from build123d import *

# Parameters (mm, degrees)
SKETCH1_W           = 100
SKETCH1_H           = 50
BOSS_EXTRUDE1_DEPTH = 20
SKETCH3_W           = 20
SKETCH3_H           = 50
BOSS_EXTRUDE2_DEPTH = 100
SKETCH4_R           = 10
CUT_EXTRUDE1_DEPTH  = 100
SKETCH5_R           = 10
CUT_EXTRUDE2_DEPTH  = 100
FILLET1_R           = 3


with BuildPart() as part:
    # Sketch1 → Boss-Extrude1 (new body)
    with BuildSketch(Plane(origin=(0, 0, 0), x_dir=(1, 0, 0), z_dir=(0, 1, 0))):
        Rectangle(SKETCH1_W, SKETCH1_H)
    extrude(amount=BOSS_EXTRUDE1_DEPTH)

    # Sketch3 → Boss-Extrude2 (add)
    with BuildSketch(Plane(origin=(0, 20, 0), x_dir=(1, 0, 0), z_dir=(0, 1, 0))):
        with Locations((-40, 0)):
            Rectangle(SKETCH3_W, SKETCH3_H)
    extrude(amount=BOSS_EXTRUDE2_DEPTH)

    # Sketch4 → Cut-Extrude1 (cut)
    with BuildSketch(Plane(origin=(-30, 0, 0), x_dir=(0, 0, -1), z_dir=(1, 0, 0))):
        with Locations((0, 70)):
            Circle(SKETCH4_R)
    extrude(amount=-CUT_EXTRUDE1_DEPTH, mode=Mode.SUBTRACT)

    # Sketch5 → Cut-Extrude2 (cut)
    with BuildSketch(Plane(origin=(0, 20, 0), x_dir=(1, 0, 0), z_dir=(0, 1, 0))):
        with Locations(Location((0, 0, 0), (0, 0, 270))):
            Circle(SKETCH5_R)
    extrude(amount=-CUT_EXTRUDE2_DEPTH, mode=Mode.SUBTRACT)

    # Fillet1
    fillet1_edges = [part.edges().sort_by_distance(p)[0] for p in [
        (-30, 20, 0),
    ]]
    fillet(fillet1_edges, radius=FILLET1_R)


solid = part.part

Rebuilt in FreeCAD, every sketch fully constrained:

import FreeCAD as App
import Part
import Sketcher

V = App.Vector
Q = App.Units.Quantity


def edges_at(feature, points):
    """Names of the edges that pass closest to the given points."""
    edges = feature.Shape.Edges
    near = lambda p: min(range(len(edges)), key=lambda i: edges[i].distToShape(Part.Vertex(*p))[0])
    return sorted({f"Edge{near(p) + 1}" for p in points})

doc = App.newDocument("Part")
body = doc.addObject("PartDesign::Body", "Body")

# Sketch on XZ plane
sketch1 = body.newObject("Sketcher::SketchObject", "Sketch")
sketch1.AttachmentSupport = (doc.getObject("XZ_Plane"), [""])
sketch1.MapMode = "FlatFace"
sketch1.addGeometry([
    Part.LineSegment(V(-50, -25, 0), V(-50, 25, 0)),
    Part.LineSegment(V(-50, 25, 0), V(50, 25, 0)),
    Part.LineSegment(V(50, 25, 0), V(50, -25, 0)),
    Part.LineSegment(V(50, -25, 0), V(-50, -25, 0)),
], False)
sketch1.addConstraint([
    Sketcher.Constraint("Coincident", 0, 2, 1, 1),
    Sketcher.Constraint("Coincident", 1, 2, 2, 1),
    Sketcher.Constraint("Coincident", 2, 2, 3, 1),
    Sketcher.Constraint("Coincident", 3, 2, 0, 1),
    Sketcher.Constraint("Vertical", 0),
    Sketcher.Constraint("Horizontal", 1),
    Sketcher.Constraint("Vertical", 2),
    Sketcher.Constraint("Horizontal", 3),
    Sketcher.Constraint("Symmetric", 0, 2, 2, 2, -1, 1),
    Sketcher.Constraint("DistanceX", 1, 1, 1, 2, Q("100 mm")),
    Sketcher.Constraint("DistanceY", 0, 1, 0, 2, Q("50 mm")),
])
pad1 = body.newObject("PartDesign::Pad", "Pad")
pad1.Profile = sketch1
pad1.Length = 20
pad1.Reversed = True

# Sketch on XZ plane
sketch2 = body.newObject("Sketcher::SketchObject", "Sketch001")
sketch2.AttachmentSupport = (doc.getObject("XZ_Plane"), [""])
sketch2.MapMode = "FlatFace"
sketch2.AttachmentOffset = App.Placement(V(0, 0, -20), App.Rotation())
sketch2.addGeometry([
    Part.LineSegment(V(-50, -25, 0), V(-50, 25, 0)),
    Part.LineSegment(V(-50, 25, 0), V(-30, 25, 0)),
    Part.LineSegment(V(-30, 25, 0), V(-30, -25, 0)),
    Part.LineSegment(V(-30, -25, 0), V(-50, -25, 0)),
], False)
sketch2.addConstraint([
    Sketcher.Constraint("Coincident", 0, 2, 1, 1),
    Sketcher.Constraint("Coincident", 1, 2, 2, 1),
    Sketcher.Constraint("Coincident", 2, 2, 3, 1),
    Sketcher.Constraint("Coincident", 3, 2, 0, 1),
    Sketcher.Constraint("Vertical", 0),
    Sketcher.Constraint("Horizontal", 1),
    Sketcher.Constraint("Vertical", 2),
    Sketcher.Constraint("Horizontal", 3),
    Sketcher.Constraint("DistanceX", 1, 1, 1, 2, Q("20 mm")),
    Sketcher.Constraint("DistanceY", 0, 1, 0, 2, Q("50 mm")),
    Sketcher.Constraint("DistanceX", 0, 2, -1, 1, Q("50 mm")),
    Sketcher.Constraint("DistanceY", -1, 1, 0, 2, Q("25 mm")),
])
pad2 = body.newObject("PartDesign::Pad", "Pad001")
pad2.Profile = sketch2
pad2.Length = 100
pad2.Reversed = True

# Sketch on YZ plane
sketch3 = body.newObject("Sketcher::SketchObject", "Sketch002")
sketch3.AttachmentSupport = (doc.getObject("YZ_Plane"), [""])
sketch3.MapMode = "FlatFace"
sketch3.AttachmentOffset = App.Placement(V(0, 0, -30), App.Rotation())
sketch3.addGeometry(Part.Circle(V(70, 0, 0), V(0, 0, 1), 10), False)
sketch3.addConstraint([
    Sketcher.Constraint("PointOnObject", 0, 3, -1),
    Sketcher.Constraint("Diameter", 0, Q("20 mm")),
    Sketcher.Constraint("DistanceX", -1, 1, 0, 3, Q("70 mm")),
])
pocket1 = body.newObject("PartDesign::Pocket", "Pocket")
pocket1.Profile = sketch3
pocket1.Length = 100

# Sketch on XZ plane
sketch4 = body.newObject("Sketcher::SketchObject", "Sketch003")
sketch4.AttachmentSupport = (doc.getObject("XZ_Plane"), [""])
sketch4.MapMode = "FlatFace"
sketch4.AttachmentOffset = App.Placement(V(0, 0, -20), App.Rotation())
sketch4.addGeometry(Part.Circle(V(0, 0, 0), V(0, 0, 1), 10), False)
sketch4.addConstraint([
    Sketcher.Constraint("Coincident", 0, 3, -1, 1),
    Sketcher.Constraint("Diameter", 0, Q("20 mm")),
])
pocket2 = body.newObject("PartDesign::Pocket", "Pocket001")
pocket2.Profile = sketch4
pocket2.Length = 100
pocket2.Reversed = True
doc.recompute()

fillet = body.newObject("PartDesign::Fillet", "Fillet")
fillet.Base = (pocket2, edges_at(pocket2, [(-30, 20, 0)]))
fillet.Radius = 3

doc.recompute()
